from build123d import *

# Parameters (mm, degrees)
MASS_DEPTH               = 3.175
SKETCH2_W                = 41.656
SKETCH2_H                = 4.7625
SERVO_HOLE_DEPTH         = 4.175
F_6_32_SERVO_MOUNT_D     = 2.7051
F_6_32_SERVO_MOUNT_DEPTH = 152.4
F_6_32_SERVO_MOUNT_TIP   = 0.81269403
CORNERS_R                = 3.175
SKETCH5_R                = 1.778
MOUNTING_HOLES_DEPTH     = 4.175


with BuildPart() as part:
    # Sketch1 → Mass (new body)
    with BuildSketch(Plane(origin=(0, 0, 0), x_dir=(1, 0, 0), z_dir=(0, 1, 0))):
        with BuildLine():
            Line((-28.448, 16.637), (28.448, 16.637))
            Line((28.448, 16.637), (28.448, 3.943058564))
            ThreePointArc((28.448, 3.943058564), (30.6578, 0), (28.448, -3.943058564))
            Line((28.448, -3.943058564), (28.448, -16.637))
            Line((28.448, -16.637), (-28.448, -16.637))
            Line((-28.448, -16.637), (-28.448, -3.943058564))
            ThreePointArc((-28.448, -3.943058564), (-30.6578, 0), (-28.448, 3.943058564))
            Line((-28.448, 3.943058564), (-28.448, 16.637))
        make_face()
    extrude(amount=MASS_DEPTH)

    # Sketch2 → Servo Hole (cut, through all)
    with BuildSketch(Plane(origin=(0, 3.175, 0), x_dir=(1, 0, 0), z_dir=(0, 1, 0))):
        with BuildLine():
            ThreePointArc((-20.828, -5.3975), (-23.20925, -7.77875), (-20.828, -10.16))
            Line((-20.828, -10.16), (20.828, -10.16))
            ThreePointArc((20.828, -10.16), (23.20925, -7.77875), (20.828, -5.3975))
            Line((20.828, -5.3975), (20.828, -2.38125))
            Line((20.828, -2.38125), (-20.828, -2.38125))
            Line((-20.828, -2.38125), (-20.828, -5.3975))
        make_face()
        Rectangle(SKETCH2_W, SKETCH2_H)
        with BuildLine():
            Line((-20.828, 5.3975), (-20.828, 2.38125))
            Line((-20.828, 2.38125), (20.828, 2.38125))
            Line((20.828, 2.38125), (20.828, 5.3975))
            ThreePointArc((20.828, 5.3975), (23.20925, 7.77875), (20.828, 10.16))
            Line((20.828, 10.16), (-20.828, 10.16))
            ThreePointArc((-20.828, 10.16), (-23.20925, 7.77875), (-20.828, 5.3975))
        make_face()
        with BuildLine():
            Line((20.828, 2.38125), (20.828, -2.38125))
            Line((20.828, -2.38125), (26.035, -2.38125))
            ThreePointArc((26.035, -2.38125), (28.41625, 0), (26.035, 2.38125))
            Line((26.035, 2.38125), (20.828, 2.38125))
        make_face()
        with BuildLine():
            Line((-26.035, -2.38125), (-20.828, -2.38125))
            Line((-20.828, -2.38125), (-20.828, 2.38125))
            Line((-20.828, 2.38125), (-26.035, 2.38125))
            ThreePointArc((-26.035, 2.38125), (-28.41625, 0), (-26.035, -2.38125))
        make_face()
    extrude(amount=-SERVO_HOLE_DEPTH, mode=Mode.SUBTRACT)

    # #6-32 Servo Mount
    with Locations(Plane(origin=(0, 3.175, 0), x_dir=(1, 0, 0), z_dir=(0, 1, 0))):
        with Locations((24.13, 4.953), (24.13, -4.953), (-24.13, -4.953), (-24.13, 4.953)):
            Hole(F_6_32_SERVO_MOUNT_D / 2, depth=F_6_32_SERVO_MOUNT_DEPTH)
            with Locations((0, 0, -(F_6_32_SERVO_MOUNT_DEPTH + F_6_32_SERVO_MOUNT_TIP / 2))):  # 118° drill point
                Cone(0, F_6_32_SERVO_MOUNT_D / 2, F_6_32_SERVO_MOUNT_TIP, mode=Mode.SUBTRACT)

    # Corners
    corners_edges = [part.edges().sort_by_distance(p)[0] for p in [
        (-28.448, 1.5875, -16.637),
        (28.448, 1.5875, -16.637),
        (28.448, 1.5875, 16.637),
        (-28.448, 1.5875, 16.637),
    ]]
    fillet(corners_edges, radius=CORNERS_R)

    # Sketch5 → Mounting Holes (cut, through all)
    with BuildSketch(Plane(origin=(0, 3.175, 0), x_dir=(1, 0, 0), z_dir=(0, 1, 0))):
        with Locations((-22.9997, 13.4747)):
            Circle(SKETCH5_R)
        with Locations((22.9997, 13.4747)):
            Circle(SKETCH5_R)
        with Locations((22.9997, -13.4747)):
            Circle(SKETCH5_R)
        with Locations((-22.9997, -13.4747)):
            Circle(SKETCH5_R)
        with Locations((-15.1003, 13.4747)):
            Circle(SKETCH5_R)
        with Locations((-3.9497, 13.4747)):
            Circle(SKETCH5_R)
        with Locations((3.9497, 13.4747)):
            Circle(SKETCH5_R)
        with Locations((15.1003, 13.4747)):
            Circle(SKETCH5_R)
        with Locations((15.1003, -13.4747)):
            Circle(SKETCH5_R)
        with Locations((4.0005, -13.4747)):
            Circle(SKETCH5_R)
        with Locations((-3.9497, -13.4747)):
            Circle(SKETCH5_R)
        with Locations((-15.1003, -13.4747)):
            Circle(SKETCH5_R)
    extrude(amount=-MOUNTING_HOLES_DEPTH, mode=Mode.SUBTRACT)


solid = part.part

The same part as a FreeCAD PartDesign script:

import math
import FreeCAD as App
import Part
import Sketcher

V = App.Vector
Q = App.Units.Quantity


def edges_at(feature, points):
    """Names of the edges that pass closest to the given points."""
    edges = feature.Shape.Edges
    near = lambda p: min(range(len(edges)), key=lambda i: edges[i].distToShape(Part.Vertex(*p))[0])
    return sorted({f"Edge{near(p) + 1}" for p in points})

doc = App.newDocument("Part")
body = doc.addObject("PartDesign::Body", "Body")

# Sketch on XZ plane
sketch1 = body.newObject("Sketcher::SketchObject", "Sketch")
sketch1.AttachmentSupport = (doc.getObject("XZ_Plane"), [""])
sketch1.MapMode = "FlatFace"
sketch1.addGeometry([
    Part.LineSegment(V(28.4, -16.6, 0), V(-28.4, -16.6, 0)),  # 0
    Part.LineSegment(V(-28.4, -16.6, 0), V(-28.4, -3.9, 0)),  # 1
    Part.ArcOfCircle(Part.Circle(V(-26, 0, 0), V(0, 0, 1), 4.6), math.radians(121), math.radians(239)),  # 2
    Part.LineSegment(V(-28.4, 3.9, 0), V(-28.4, 16.6, 0)),  # 3
    Part.LineSegment(V(-28.4, 16.6, 0), V(28.4, 16.6, 0)),  # 4
    Part.LineSegment(V(28.4, 16.6, 0), V(28.4, 3.9, 0)),  # 5
    Part.ArcOfCircle(Part.Circle(V(26, 0, 0), V(0, 0, 1), 4.6), math.radians(-59), math.radians(59)),  # 6
    Part.LineSegment(V(28.4, -3.9, 0), V(28.4, -16.6, 0)),  # 7
], False)
sketch1.addConstraint([
    Sketcher.Constraint("Coincident", 0, 2, 1, 1),
    Sketcher.Constraint("Coincident", 1, 2, 2, 2),
    Sketcher.Constraint("Coincident", 2, 1, 3, 1),
    Sketcher.Constraint("Coincident", 3, 2, 4, 1),
    Sketcher.Constraint("Coincident", 4, 2, 5, 1),
    Sketcher.Constraint("Coincident", 5, 2, 6, 2),
    Sketcher.Constraint("Coincident", 6, 1, 7, 1),
    Sketcher.Constraint("Coincident", 7, 2, 0, 1),
    Sketcher.Constraint("Horizontal", 0),
    Sketcher.Constraint("Vertical", 1),
    Sketcher.Constraint("Vertical", 3),
    Sketcher.Constraint("Horizontal", 4),
    Sketcher.Constraint("Vertical", 5),
    Sketcher.Constraint("Vertical", 7),
    Sketcher.Constraint("Equal", 2, 6),
    Sketcher.Constraint("Symmetric", 2, 3, 6, 3, -1, 1),
    Sketcher.Constraint("Symmetric", 0, 2, 4, 2, -1, 1),
    Sketcher.Constraint("Symmetric", 2, 1, 5, 2, -2),
    Sketcher.Constraint("Horizontal", 1, 2, 6, 1),
    Sketcher.Constraint("Radius", 2, Q("0.182 in")),
    Sketcher.Constraint("DistanceX", 0, 2, 0, 1, Q("2.24 in")),
    Sketcher.Constraint("DistanceX", 2, 3, 6, 3, Q("2.05 in")),
    Sketcher.Constraint("DistanceY", 0, 2, 3, 2, Q("1.31 in")),
])
pad1 = body.newObject("PartDesign::Pad", "Pad")
pad1.Profile = sketch1
pad1.Length = Q("0.125 in")
pad1.Reversed = True

# Sketch on XZ plane
sketch2 = body.newObject("Sketcher::SketchObject", "Sketch001")
sketch2.AttachmentSupport = (doc.getObject("XZ_Plane"), [""])
sketch2.MapMode = "FlatFace"
sketch2.AttachmentOffset = App.Placement(V(0, 0, -0.125 * 25.4), App.Rotation())
sketch2.addGeometry([
    Part.ArcOfCircle(Part.Circle(V(-20.8, 7.8, 0), V(0, 0, 1), 2.4), math.radians(90), math.radians(270)),  # 0
    Part.LineSegment(V(-20.8, 10.2, 0), V(20.8, 10.2, 0)),  # 1
    Part.ArcOfCircle(Part.Circle(V(20.8, 7.8, 0), V(0, 0, 1), 2.4), math.radians(-90), math.radians(90)),  # 2
    Part.LineSegment(V(20.8, 5.4, 0), V(20.8, 2.4, 0)),  # 3
    Part.LineSegment(V(20.8, 2.4, 0), V(26, 2.4, 0)),  # 4
    Part.ArcOfCircle(Part.Circle(V(26, 0, 0), V(0, 0, 1), 2.4), math.radians(-90), math.radians(90)),  # 5
    Part.LineSegment(V(26, -2.4, 0), V(20.8, -2.4, 0)),  # 6
    Part.LineSegment(V(20.8, -2.4, 0), V(20.8, -5.4, 0)),  # 7
    Part.ArcOfCircle(Part.Circle(V(20.8, -7.8, 0), V(0, 0, 1), 2.4), math.radians(-90), math.radians(90)),  # 8
    Part.LineSegment(V(20.8, -10.2, 0), V(-20.8, -10.2, 0)),  # 9
    Part.ArcOfCircle(Part.Circle(V(-20.8, -7.8, 0), V(0, 0, 1), 2.4), math.radians(90), math.radians(270)),  # 10
    Part.LineSegment(V(-20.8, -5.4, 0), V(-20.8, -2.4, 0)),  # 11
    Part.LineSegment(V(-20.8, -2.4, 0), V(-26, -2.4, 0)),  # 12
    Part.ArcOfCircle(Part.Circle(V(-26, 0, 0), V(0, 0, 1), 2.4), math.radians(90), math.radians(270)),  # 13
    Part.LineSegment(V(-26, 2.4, 0), V(-20.8, 2.4, 0)),  # 14
    Part.LineSegment(V(-20.8, 2.4, 0), V(-20.8, 5.4, 0)),  # 15
], False)
sketch2.addConstraint([
    Sketcher.Constraint("Tangent", 0, 1, 1, 1),
    Sketcher.Constraint("Tangent", 1, 2, 2, 2),
    Sketcher.Constraint("Coincident", 2, 1, 3, 1),
    Sketcher.Constraint("Coincident", 3, 2, 4, 1),
    Sketcher.Constraint("Tangent", 4, 2, 5, 2),
    Sketcher.Constraint("Tangent", 5, 1, 6, 1),
    Sketcher.Constraint("Coincident", 6, 2, 7, 1),
    Sketcher.Constraint("Coincident", 7, 2, 8, 2),
    Sketcher.Constraint("Tangent", 8, 1, 9, 1),
    Sketcher.Constraint("Tangent", 9, 2, 10, 2),
    Sketcher.Constraint("Coincident", 10, 1, 11, 1),
    Sketcher.Constraint("Coincident", 11, 2, 12, 1),
    Sketcher.Constraint("Tangent", 12, 2, 13, 2),
    Sketcher.Constraint("Tangent", 13, 1, 14, 1),
    Sketcher.Constraint("Coincident", 14, 2, 15, 1),
    Sketcher.Constraint("Coincident", 15, 2, 0, 2),
    Sketcher.Constraint("Horizontal", 1),
    Sketcher.Constraint("Vertical", 3),
    Sketcher.Constraint("Horizontal", 4),
    Sketcher.Constraint("Horizontal", 6),
    Sketcher.Constraint("Vertical", 7),
    Sketcher.Constraint("Horizontal", 9),
    Sketcher.Constraint("Vertical", 11),
    Sketcher.Constraint("Horizontal", 12),
    Sketcher.Constraint("Horizontal", 14),
    Sketcher.Constraint("Vertical", 15),
    Sketcher.Constraint("Equal", 0, 2),
    Sketcher.Constraint("Equal", 2, 5),
    Sketcher.Constraint("Equal", 5, 8),
    Sketcher.Constraint("Equal", 8, 10),
    Sketcher.Constraint("Equal", 10, 13),
    Sketcher.Constraint("Symmetric", 0, 3, 8, 3, -1, 1),
    Sketcher.Constraint("Symmetric", 5, 3, 13, 3, -1, 1),
    Sketcher.Constraint("Symmetric", 6, 2, 11, 2, -2),
    Sketcher.Constraint("Vertical", 2, 3, 8, 3),
    Sketcher.Constraint("Vertical", 0, 3, 10, 3),
    Sketcher.Constraint("Vertical", 1, 2, 2, 1),
    Sketcher.Constraint("Vertical", 3, 2, 6, 2),
    Sketcher.Constraint("Vertical", 11, 2, 14, 2),
    Sketcher.Constraint("Radius", 0, Q("0.09375 in")),
    Sketcher.Constraint("DistanceX", 1, 1, 1, 2, Q("1.64 in")),
    Sketcher.Constraint("DistanceY", -1, 1, 0, 1, Q("0.4 in")),
    Sketcher.Constraint("DistanceX", 4, 1, 4, 2, Q("0.205 in")),
])
pocket1 = body.newObject("PartDesign::Pocket", "Pocket")
pocket1.Profile = sketch2
pocket1.Type = "ThroughAll"
pocket1.Reversed = True

# Sketch on XZ plane
sketch3 = body.newObject("Sketcher::SketchObject", "Sketch002")
sketch3.AttachmentSupport = (doc.getObject("XZ_Plane"), [""])
sketch3.MapMode = "FlatFace"
sketch3.AttachmentOffset = App.Placement(V(0, 0, -0.125 * 25.4), App.Rotation())
sketch3.addGeometry([
    Part.Circle(V(24.1, -5, 0), V(0, 0, 1), 1.4),
    Part.Circle(V(24.1, 5, 0), V(0, 0, 1), 1.4),
    Part.Circle(V(-24.1, 5, 0), V(0, 0, 1), 1.4),
    Part.Circle(V(-24.1, -5, 0), V(0, 0, 1), 1.4),
], False)
sketch3.addConstraint([
    Sketcher.Constraint("Equal", 0, 1),
    Sketcher.Constraint("Equal", 1, 2),
    Sketcher.Constraint("Equal", 2, 3),
    Sketcher.Constraint("Symmetric", 0, 3, 2, 3, -1, 1),
    Sketcher.Constraint("Symmetric", 1, 3, 3, 3, -1, 1),
    Sketcher.Constraint("Symmetric", 1, 3, 2, 3, -2),
    Sketcher.Constraint("Diameter", 0, Q("0.1065 in")),
    Sketcher.Constraint("DistanceX", 2, 3, 1, 3, Q("1.9 in")),
    Sketcher.Constraint("DistanceY", 0, 3, 1, 3, Q("0.39 in")),
])
doc.recompute()
hole = body.newObject("PartDesign::Hole", "Hole")
hole.Profile = sketch3
hole.ThreadType = "None"
hole.Diameter = Q("0.1065 in")
hole.DepthType = "Dimension"
hole.Depth = Q("6 in")
hole.DrillPoint = "Angled"
hole.DrillPointAngle = 118
hole.Reversed = True
doc.recompute()

fillet = body.newObject("PartDesign::Fillet", "Fillet")
fillet.Base = (hole, edges_at(hole, [
    (-28.448, 1.587, -16.637),
    (28.448, 1.587, -16.637),
    (28.448, 1.587, 16.637),
    (-28.448, 1.587, 16.637),
]))
fillet.Radius = Q("0.125 in")

# Sketch on XZ plane
sketch4 = body.newObject("Sketcher::SketchObject", "Sketch003")
sketch4.AttachmentSupport = (doc.getObject("XZ_Plane"), [""])
sketch4.MapMode = "FlatFace"
sketch4.AttachmentOffset = App.Placement(V(0, 0, -0.125 * 25.4), App.Rotation())
sketch4.addGeometry([
    Part.Circle(V(-23, -13.5, 0), V(0, 0, 1), 1.8),  # 0
    Part.Circle(V(23, -13.5, 0), V(0, 0, 1), 1.8),  # 1
    Part.Circle(V(23, 13.5, 0), V(0, 0, 1), 1.8),  # 2
    Part.Circle(V(-23, 13.5, 0), V(0, 0, 1), 1.8),  # 3
    Part.Circle(V(-15.1, -13.5, 0), V(0, 0, 1), 1.8),  # 4
    Part.Circle(V(-3.9, -13.5, 0), V(0, 0, 1), 1.8),  # 5
    Part.Circle(V(3.9, -13.5, 0), V(0, 0, 1), 1.8),  # 6
    Part.Circle(V(15.1, -13.5, 0), V(0, 0, 1), 1.8),  # 7
    Part.Circle(V(15.1, 13.5, 0), V(0, 0, 1), 1.8),  # 8
    Part.Circle(V(4, 13.5, 0), V(0, 0, 1), 1.8),  # 9
    Part.Circle(V(-3.9, 13.5, 0), V(0, 0, 1), 1.8),  # 10
    Part.Circle(V(-15.1, 13.5, 0), V(0, 0, 1), 1.8),  # 11
], False)
sketch4.addConstraint([
    Sketcher.Constraint("Equal", 0, 1),
    Sketcher.Constraint("Equal", 1, 2),
    Sketcher.Constraint("Equal", 2, 3),
    Sketcher.Constraint("Equal", 3, 4),
    Sketcher.Constraint("Equal", 4, 5),
    Sketcher.Constraint("Equal", 5, 6),
    Sketcher.Constraint("Equal", 6, 7),
    Sketcher.Constraint("Equal", 7, 8),
    Sketcher.Constraint("Equal", 8, 9),
    Sketcher.Constraint("Equal", 9, 10),
    Sketcher.Constraint("Equal", 10, 11),
    Sketcher.Constraint("Symmetric", 0, 3, 2, 3, -1, 1),
    Sketcher.Constraint("Symmetric", 1, 3, 3, 3, -1, 1),
    Sketcher.Constraint("Symmetric", 4, 3, 8, 3, -1, 1),
    Sketcher.Constraint("Symmetric", 6, 3, 10, 3, -1, 1),
    Sketcher.Constraint("Symmetric", 7, 3, 11, 3, -1, 1),
    Sketcher.Constraint("Symmetric", 0, 3, 1, 3, -2),
    Sketcher.Constraint("Symmetric", 5, 3, 6, 3, -2),
    Sketcher.Constraint("Symmetric", 4, 3, 7, 3, -2),
    Sketcher.Constraint("Horizontal", 1, 3, 4, 3),
    Sketcher.Constraint("Horizontal", 4, 3, 5, 3),
    Sketcher.Constraint("Horizontal", 8, 3, 9, 3),
    Sketcher.Constraint("Diameter", 0, Q("0.14 in")),
    Sketcher.Constraint("DistanceX", 4, 3, 1, 3, Q("1.5 in")),
    Sketcher.Constraint("DistanceX", 0, 3, 5, 3, Q("0.75 in")),
    Sketcher.Constraint("DistanceX", 0, 3, 1, 3, Q("1.811 in")),
    Sketcher.Constraint("DistanceY", 1, 3, 2, 3, Q("1.061 in")),
    Sketcher.Constraint("DistanceX", 9, 3, 8, 3, Q("0.437 in")),
])
pocket2 = body.newObject("PartDesign::Pocket", "Pocket001")
pocket2.Profile = sketch4
pocket2.Type = "ThroughAll"
pocket2.Reversed = True

doc.recompute()
